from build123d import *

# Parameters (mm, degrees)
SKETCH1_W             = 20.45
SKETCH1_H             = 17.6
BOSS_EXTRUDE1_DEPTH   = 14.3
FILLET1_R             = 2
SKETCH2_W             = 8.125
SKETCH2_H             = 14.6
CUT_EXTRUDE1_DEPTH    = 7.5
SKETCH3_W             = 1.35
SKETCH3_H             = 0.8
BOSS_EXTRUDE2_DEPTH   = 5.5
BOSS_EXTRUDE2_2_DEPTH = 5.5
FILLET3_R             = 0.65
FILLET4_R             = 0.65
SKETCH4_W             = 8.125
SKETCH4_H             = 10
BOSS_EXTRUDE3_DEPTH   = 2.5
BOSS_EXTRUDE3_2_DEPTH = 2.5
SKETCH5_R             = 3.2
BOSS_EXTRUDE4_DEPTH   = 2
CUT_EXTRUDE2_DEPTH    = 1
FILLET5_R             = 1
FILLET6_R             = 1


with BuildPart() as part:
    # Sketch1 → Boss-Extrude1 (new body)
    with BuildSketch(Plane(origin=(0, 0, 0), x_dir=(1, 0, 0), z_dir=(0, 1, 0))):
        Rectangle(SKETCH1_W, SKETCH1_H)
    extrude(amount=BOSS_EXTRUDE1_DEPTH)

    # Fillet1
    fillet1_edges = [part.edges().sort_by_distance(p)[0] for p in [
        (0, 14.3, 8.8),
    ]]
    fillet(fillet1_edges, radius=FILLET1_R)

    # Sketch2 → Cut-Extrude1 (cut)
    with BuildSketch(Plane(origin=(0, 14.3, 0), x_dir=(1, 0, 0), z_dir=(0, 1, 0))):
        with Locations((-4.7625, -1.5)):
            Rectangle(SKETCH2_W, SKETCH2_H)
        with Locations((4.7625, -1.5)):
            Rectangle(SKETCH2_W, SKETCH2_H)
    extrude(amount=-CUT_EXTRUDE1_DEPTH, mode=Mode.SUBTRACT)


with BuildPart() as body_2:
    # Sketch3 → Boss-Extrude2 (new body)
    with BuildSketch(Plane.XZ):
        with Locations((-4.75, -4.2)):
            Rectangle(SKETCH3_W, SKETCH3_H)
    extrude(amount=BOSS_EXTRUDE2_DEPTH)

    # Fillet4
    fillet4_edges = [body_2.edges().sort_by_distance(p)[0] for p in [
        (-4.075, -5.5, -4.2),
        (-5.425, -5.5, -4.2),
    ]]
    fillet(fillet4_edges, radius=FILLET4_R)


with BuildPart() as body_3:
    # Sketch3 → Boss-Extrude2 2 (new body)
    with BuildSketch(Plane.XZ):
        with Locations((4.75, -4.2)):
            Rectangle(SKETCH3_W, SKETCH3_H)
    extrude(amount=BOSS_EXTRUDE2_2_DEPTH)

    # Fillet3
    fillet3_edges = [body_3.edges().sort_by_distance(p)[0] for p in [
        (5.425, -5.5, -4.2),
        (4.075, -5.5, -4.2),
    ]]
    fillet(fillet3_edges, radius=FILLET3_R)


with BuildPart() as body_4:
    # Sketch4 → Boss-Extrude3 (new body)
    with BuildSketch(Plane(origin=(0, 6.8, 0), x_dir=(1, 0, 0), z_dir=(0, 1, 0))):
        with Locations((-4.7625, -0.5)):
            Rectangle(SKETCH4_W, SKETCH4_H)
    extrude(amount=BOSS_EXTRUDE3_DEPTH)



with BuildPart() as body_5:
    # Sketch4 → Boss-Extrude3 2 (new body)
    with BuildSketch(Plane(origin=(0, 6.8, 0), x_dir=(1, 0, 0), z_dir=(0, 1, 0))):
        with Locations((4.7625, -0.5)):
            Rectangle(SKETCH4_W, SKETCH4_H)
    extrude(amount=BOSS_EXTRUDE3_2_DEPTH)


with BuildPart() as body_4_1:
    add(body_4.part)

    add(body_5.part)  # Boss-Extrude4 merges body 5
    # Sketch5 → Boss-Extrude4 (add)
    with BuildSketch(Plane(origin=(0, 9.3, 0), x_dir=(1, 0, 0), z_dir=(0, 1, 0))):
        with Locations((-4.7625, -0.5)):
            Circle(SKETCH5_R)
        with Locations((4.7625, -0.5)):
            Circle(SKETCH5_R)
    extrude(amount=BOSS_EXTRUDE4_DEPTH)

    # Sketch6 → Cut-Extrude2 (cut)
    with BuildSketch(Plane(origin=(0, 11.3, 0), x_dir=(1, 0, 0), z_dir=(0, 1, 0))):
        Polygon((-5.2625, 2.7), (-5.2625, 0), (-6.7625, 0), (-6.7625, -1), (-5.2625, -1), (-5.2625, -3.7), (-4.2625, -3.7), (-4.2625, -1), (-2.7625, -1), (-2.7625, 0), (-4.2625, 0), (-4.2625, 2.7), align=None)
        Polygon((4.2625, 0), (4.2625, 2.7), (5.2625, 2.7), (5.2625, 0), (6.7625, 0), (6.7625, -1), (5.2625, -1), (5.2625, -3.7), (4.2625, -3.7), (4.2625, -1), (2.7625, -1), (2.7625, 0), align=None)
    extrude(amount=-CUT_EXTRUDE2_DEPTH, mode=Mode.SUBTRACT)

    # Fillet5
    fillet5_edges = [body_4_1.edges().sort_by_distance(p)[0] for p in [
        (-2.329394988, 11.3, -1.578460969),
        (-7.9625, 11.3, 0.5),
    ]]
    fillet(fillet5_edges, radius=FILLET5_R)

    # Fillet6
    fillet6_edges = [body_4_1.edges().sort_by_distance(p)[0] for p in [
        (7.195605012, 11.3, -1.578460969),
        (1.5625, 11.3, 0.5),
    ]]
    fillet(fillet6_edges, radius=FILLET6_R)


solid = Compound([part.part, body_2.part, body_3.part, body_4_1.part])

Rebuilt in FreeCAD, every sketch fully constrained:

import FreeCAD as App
import Part
import Sketcher
Q = App.Units.Quantity


def edges_at(feature, points):
    """Names of the edges that pass closest to the given points."""
    edges = feature.Shape.Edges
    near = lambda p: min(range(len(edges)), key=lambda i: edges[i].distToShape(Part.Vertex(*p))[0])
    return sorted({f"Edge{near(p) + 1}" for p in points})


def add_polygon(sketch, points):
    """Adds a closed chain of lines whose ends are joined by coincident constraints."""
    first, n = sketch.GeometryCount, len(points)
    for a, b in zip(points, points[1:] + points[:1]):
        sketch.addGeometry(Part.LineSegment(App.Vector(*a, 0), App.Vector(*b, 0)), False)
    for i in range(n):
        sketch.addConstraint(Sketcher.Constraint("Coincident", first + i, 2, first + (i + 1) % n, 1))

doc = App.newDocument("Part")
body = doc.addObject("PartDesign::Body", "Body")

# Sketch on XZ plane
sketch1 = body.newObject("Sketcher::SketchObject", "Sketch")
sketch1.AttachmentSupport = (doc.getObject("XZ_Plane"), [""])
sketch1.MapMode = "FlatFace"
add_polygon(sketch1, [(-10.225, -8.8), (-10.225, 8.8), (10.225, 8.8), (10.225, -8.8)])  # lines 0-3
sketch1.addConstraint([
    Sketcher.Constraint("Vertical", 0),
    Sketcher.Constraint("Horizontal", 1),
    Sketcher.Constraint("Vertical", 2),
    Sketcher.Constraint("Horizontal", 3),
    Sketcher.Constraint("Symmetric", 0, 2, 2, 2, -1, 1),
    Sketcher.Constraint("DistanceY", 0, 1, 0, 2, Q("17.6 mm")),
    Sketcher.Constraint("DistanceX", 1, 1, 1, 2, Q("20.45 mm")),
])
pad1 = body.newObject("PartDesign::Pad", "Pad")
pad1.Profile = sketch1
pad1.Length = 14.3
pad1.Reversed = True
doc.recompute()

fillet = body.newObject("PartDesign::Fillet", "Fillet")
fillet.Base = (pad1, edges_at(pad1, [(0, 14.3, 8.8)]))
fillet.Radius = 2

# Sketch on XZ plane
sketch2 = body.newObject("Sketcher::SketchObject", "Sketch001")
sketch2.AttachmentSupport = (doc.getObject("XZ_Plane"), [""])
sketch2.MapMode = "FlatFace"
sketch2.AttachmentOffset = App.Placement(App.Vector(0, 0, -14.3), App.Rotation())
add_polygon(sketch2, [(-8.825, -5.8), (-8.825, 8.8), (-0.7, 8.8), (-0.7, -5.8)])  # lines 0-3
add_polygon(sketch2, [(0.7, -5.8), (0.7, 8.8), (8.825, 8.8), (8.825, -5.8)])  # lines 4-7
sketch2.addConstraint([
    Sketcher.Constraint("Vertical", 0),
    Sketcher.Constraint("Horizontal", 1),
    Sketcher.Constraint("Vertical", 2),
    Sketcher.Constraint("Horizontal", 3),
    Sketcher.Constraint("Vertical", 4),
    Sketcher.Constraint("Horizontal", 5),
    Sketcher.Constraint("Vertical", 6),
    Sketcher.Constraint("Horizontal", 7),
    Sketcher.Constraint("Symmetric", 1, 2, 4, 2, -2),
    Sketcher.Constraint("Symmetric", 3, 2, 6, 2, -2),
    Sketcher.Constraint("DistanceY", 0, 1, 0, 2, Q("14.6 mm")),
    Sketcher.Constraint("DistanceY", -1, 1, 0, 2, Q("8.8 mm")),
    Sketcher.Constraint("DistanceX", 1, 2, -1, 1, Q("0.7 mm")),
    Sketcher.Constraint("DistanceX", 1, 1, 1, 2, Q("8.125 mm")),
])
pocket1 = body.newObject("PartDesign::Pocket", "Pocket")
pocket1.Profile = sketch2
pocket1.Length = 7.5
pocket1.Reversed = True
body2 = doc.addObject("PartDesign::Body", "Body001")

# Sketch on XZ plane
sketch3 = body2.newObject("Sketcher::SketchObject", "Sketch002")
sketch3.AttachmentSupport = (doc.getObject("XZ_Plane001"), [""])
sketch3.MapMode = "FlatFace"
add_polygon(sketch3, [(-5.425, -3.8), (-5.425, -4.6), (-4.075, -4.6), (-4.075, -3.8)])  # lines 0-3
sketch3.addConstraint([
    Sketcher.Constraint("Vertical", 0),
    Sketcher.Constraint("Horizontal", 1),
    Sketcher.Constraint("Vertical", 2),
    Sketcher.Constraint("Horizontal", 3),
    Sketcher.Constraint("DistanceY", 0, 2, 0, 1, Q("0.8 mm")),
    Sketcher.Constraint("DistanceX", 1, 1, 1, 2, Q("1.35 mm")),
    Sketcher.Constraint("DistanceY", 0, 2, -1, 1, Q("4.6 mm")),
    Sketcher.Constraint("DistanceX", 0, 2, -1, 1, Q("5.425 mm")),
])
pad2 = body2.newObject("PartDesign::Pad", "Pad001")
pad2.Profile = sketch3
pad2.Length = 5.5
doc.recompute()

fillet2 = body2.newObject("PartDesign::Fillet", "Fillet001")
fillet2.Base = (pad2, edges_at(pad2, [(-4.075, -5.5, -4.2), (-5.425, -5.5, -4.2)]))
fillet2.Radius = 0.65
body3 = doc.addObject("PartDesign::Body", "Body002")

# Sketch on XZ plane
sketch4 = body3.newObject("Sketcher::SketchObject", "Sketch003")
sketch4.AttachmentSupport = (doc.getObject("XZ_Plane002"), [""])
sketch4.MapMode = "FlatFace"
add_polygon(sketch4, [(4.075, -3.8), (4.075, -4.6), (5.425, -4.6), (5.425, -3.8)])  # lines 0-3
sketch4.addConstraint([
    Sketcher.Constraint("Vertical", 0),
    Sketcher.Constraint("Horizontal", 1),
    Sketcher.Constraint("Vertical", 2),
    Sketcher.Constraint("Horizontal", 3),
    Sketcher.Constraint("DistanceY", 0, 2, 0, 1, Q("0.8 mm")),
    Sketcher.Constraint("DistanceX", 1, 1, 1, 2, Q("1.35 mm")),
    Sketcher.Constraint("DistanceY", 0, 2, -1, 1, Q("4.6 mm")),
    Sketcher.Constraint("DistanceX", -1, 1, 0, 2, Q("4.075 mm")),
])
pad3 = body3.newObject("PartDesign::Pad", "Pad002")
pad3.Profile = sketch4
pad3.Length = 5.5
doc.recompute()

fillet3 = body3.newObject("PartDesign::Fillet", "Fillet002")
fillet3.Base = (pad3, edges_at(pad3, [(5.425, -5.5, -4.2), (4.075, -5.5, -4.2)]))
fillet3.Radius = 0.65
body4 = doc.addObject("PartDesign::Body", "Body003")

# Sketch on XZ plane
sketch5 = body4.newObject("Sketcher::SketchObject", "Sketch004")
sketch5.AttachmentSupport = (doc.getObject("XZ_Plane003"), [""])
sketch5.MapMode = "FlatFace"
sketch5.AttachmentOffset = App.Placement(App.Vector(0, 0, -6.8), App.Rotation())
add_polygon(sketch5, [(-8.825, -4.5), (-8.825, 5.5), (-0.7, 5.5), (-0.7, -4.5)])  # lines 0-3
sketch5.addConstraint([
    Sketcher.Constraint("Vertical", 0),
    Sketcher.Constraint("Horizontal", 1),
    Sketcher.Constraint("Vertical", 2),
    Sketcher.Constraint("Horizontal", 3),
    Sketcher.Constraint("DistanceY", 0, 1, 0, 2, Q("10 mm")),
    Sketcher.Constraint("DistanceY", -1, 1, 0, 2, Q("5.5 mm")),
    Sketcher.Constraint("DistanceX", 1, 2, -1, 1, Q("0.7 mm")),
    Sketcher.Constraint("DistanceX", 1, 1, 1, 2, Q("8.125 mm")),
])
pad4 = body4.newObject("PartDesign::Pad", "Pad003")
pad4.Profile = sketch5
pad4.Length = 2.5
pad4.Reversed = True
body5 = doc.addObject("PartDesign::Body", "Body004")

# Sketch on XZ plane
sketch6 = body5.newObject("Sketcher::SketchObject", "Sketch005")
sketch6.AttachmentSupport = (doc.getObject("XZ_Plane004"), [""])
sketch6.MapMode = "FlatFace"
sketch6.AttachmentOffset = App.Placement(App.Vector(0, 0, -6.8), App.Rotation())
add_polygon(sketch6, [(0.7, -4.5), (0.7, 5.5), (8.825, 5.5), (8.825, -4.5)])  # lines 0-3
sketch6.addConstraint([
    Sketcher.Constraint("Vertical", 0),
    Sketcher.Constraint("Horizontal", 1),
    Sketcher.Constraint("Vertical", 2),
    Sketcher.Constraint("Horizontal", 3),
    Sketcher.Constraint("DistanceY", 0, 1, 0, 2, Q("10 mm")),
    Sketcher.Constraint("DistanceX", -1, 1, 0, 2, Q("0.7 mm")),
    Sketcher.Constraint("DistanceY", -1, 1, 0, 2, Q("5.5 mm")),
    Sketcher.Constraint("DistanceX", 1, 1, 1, 2, Q("8.125 mm")),
])
pad5 = body5.newObject("PartDesign::Pad", "Pad004")
pad5.Profile = sketch6
pad5.Length = 2.5
pad5.Reversed = True
body4.AllowCompound = True
doc.recompute()

boolean = body4.newObject("PartDesign::Boolean", "Boolean")
boolean.Type = "Fuse"
boolean.addObjects([body5])

# Sketch on XZ plane
sketch7 = body4.newObject("Sketcher::SketchObject", "Sketch006")
sketch7.AttachmentSupport = (doc.getObject("XZ_Plane003"), [""])
sketch7.MapMode = "FlatFace"
sketch7.AttachmentOffset = App.Placement(App.Vector(0, 0, -9.3), App.Rotation())
sketch7.addGeometry([
    Part.Circle(App.Vector(-4.7625, 0.5, 0), App.Vector(0, 0, 1), 3.2),
    Part.Circle(App.Vector(4.7625, 0.5, 0), App.Vector(0, 0, 1), 3.2),
], False)
sketch7.addConstraint([
    Sketcher.Constraint("Equal", 0, 1),
    Sketcher.Constraint("Symmetric", 0, 3, 1, 3, -2),
    Sketcher.Constraint("Diameter", 0, Q("6.4 mm")),
    Sketcher.Constraint("DistanceY", -1, 1, 0, 3, Q("0.5 mm")),
    Sketcher.Constraint("DistanceX", 0, 3, 1, 3, Q("9.525 mm")),
])
pad6 = body4.newObject("PartDesign::Pad", "Pad005")
pad6.Profile = sketch7
pad6.Length = 2
pad6.Reversed = True

# Sketch on XZ plane
sketch8 = body4.newObject("Sketcher::SketchObject", "Sketch007")
sketch8.AttachmentSupport = (doc.getObject("XZ_Plane003"), [""])
sketch8.MapMode = "FlatFace"
sketch8.AttachmentOffset = App.Placement(App.Vector(0, 0, -11.3), App.Rotation())
add_polygon(sketch8, [(-5.2625, -2.7), (-5.2625, 0), (-6.7625, 0), (-6.7625, 1), (-5.2625, 1), (-5.2625, 3.7), (-4.2625, 3.7), (-4.2625, 1), (-2.7625, 1), (-2.7625, 0), (-4.2625, 0), (-4.2625, -2.7)])  # lines 0-11
add_polygon(sketch8, [(4.2625, -2.7), (4.2625, 0), (2.7625, 0), (2.7625, 1), (4.2625, 1), (4.2625, 3.7), (5.2625, 3.7), (5.2625, 1), (6.7625, 1), (6.7625, 0), (5.2625, 0), (5.2625, -2.7)])  # lines 12-23
sketch8.addConstraint([
    Sketcher.Constraint("Vertical", 0),
    Sketcher.Constraint("Horizontal", 1),
    Sketcher.Constraint("Vertical", 2),
    Sketcher.Constraint("Horizontal", 3),
    Sketcher.Constraint("Vertical", 4),
    Sketcher.Constraint("Horizontal", 5),
    Sketcher.Constraint("Vertical", 6),
    Sketcher.Constraint("Horizontal", 7),
    Sketcher.Constraint("Vertical", 8),
    Sketcher.Constraint("Horizontal", 9),
    Sketcher.Constraint("Vertical", 10),
    Sketcher.Constraint("Horizontal", 11),
    Sketcher.Constraint("Vertical", 12),
    Sketcher.Constraint("Horizontal", 13),
    Sketcher.Constraint("Vertical", 14),
    Sketcher.Constraint("Horizontal", 15),
    Sketcher.Constraint("Vertical", 16),
    Sketcher.Constraint("Horizontal", 17),
    Sketcher.Constraint("Vertical", 18),
    Sketcher.Constraint("Horizontal", 19),
    Sketcher.Constraint("Vertical", 20),
    Sketcher.Constraint("Horizontal", 21),
    Sketcher.Constraint("Vertical", 22),
    Sketcher.Constraint("Horizontal", 23),
    Sketcher.Constraint("Symmetric", 9, 2, 12, 2, -1, 1),
    Sketcher.Constraint("Symmetric", 1, 2, 20, 2, -1, 1),
    Sketcher.Constraint("Symmetric", 8, 2, 13, 2, -2),
    Sketcher.Constraint("Symmetric", 6, 2, 15, 2, -2),
    Sketcher.Constraint("Symmetric", 4, 2, 17, 2, -2),
    Sketcher.Constraint("Symmetric", 0, 2, 21, 2, -2),
    Sketcher.Constraint("Horizontal", 3, 2, 6, 2),
    Sketcher.Constraint("Horizontal", 15, 2, 18, 2),
    Sketcher.Constraint("Horizontal", 11, 2, 22, 2),
    Sketcher.Constraint("Vertical", 0, 2, 3, 2),
    Sketcher.Constraint("Vertical", 6, 2, 9, 2),
    Sketcher.Constraint("Equal", 3, 7),
    Sketcher.Constraint("Equal", 23, 2),
    Sketcher.Constraint("Equal", 0, 4),
    Sketcher.Constraint("DistanceX", 5, 1, 5, 2, Q("1 mm")),
    Sketcher.Constraint("DistanceX", 1, 2, 1, 1, Q("1.5 mm")),
    Sketcher.Constraint("DistanceY", 0, 1, 0, 2, Q("2.7 mm")),
    Sketcher.Constraint("DistanceX", 8, 2, 12, 2, Q("7.025 mm")),
])
pocket2 = body4.newObject("PartDesign::Pocket", "Pocket001")
pocket2.Profile = sketch8
pocket2.Length = 1
pocket2.Reversed = True
doc.recompute()

fillet4 = body4.newObject("PartDesign::Fillet", "Fillet003")
fillet4.Base = (pocket2, edges_at(pocket2, [(-2.329, 11.3, -1.578), (-7.963, 11.3, 0.5)]))
fillet4.Radius = 1
doc.recompute()

fillet5 = body4.newObject("PartDesign::Fillet", "Fillet004")
fillet5.Base = (fillet4, edges_at(fillet4, [(7.196, 11.3, -1.578), (1.562, 11.3, 0.5)]))
fillet5.Radius = 1

doc.recompute()
